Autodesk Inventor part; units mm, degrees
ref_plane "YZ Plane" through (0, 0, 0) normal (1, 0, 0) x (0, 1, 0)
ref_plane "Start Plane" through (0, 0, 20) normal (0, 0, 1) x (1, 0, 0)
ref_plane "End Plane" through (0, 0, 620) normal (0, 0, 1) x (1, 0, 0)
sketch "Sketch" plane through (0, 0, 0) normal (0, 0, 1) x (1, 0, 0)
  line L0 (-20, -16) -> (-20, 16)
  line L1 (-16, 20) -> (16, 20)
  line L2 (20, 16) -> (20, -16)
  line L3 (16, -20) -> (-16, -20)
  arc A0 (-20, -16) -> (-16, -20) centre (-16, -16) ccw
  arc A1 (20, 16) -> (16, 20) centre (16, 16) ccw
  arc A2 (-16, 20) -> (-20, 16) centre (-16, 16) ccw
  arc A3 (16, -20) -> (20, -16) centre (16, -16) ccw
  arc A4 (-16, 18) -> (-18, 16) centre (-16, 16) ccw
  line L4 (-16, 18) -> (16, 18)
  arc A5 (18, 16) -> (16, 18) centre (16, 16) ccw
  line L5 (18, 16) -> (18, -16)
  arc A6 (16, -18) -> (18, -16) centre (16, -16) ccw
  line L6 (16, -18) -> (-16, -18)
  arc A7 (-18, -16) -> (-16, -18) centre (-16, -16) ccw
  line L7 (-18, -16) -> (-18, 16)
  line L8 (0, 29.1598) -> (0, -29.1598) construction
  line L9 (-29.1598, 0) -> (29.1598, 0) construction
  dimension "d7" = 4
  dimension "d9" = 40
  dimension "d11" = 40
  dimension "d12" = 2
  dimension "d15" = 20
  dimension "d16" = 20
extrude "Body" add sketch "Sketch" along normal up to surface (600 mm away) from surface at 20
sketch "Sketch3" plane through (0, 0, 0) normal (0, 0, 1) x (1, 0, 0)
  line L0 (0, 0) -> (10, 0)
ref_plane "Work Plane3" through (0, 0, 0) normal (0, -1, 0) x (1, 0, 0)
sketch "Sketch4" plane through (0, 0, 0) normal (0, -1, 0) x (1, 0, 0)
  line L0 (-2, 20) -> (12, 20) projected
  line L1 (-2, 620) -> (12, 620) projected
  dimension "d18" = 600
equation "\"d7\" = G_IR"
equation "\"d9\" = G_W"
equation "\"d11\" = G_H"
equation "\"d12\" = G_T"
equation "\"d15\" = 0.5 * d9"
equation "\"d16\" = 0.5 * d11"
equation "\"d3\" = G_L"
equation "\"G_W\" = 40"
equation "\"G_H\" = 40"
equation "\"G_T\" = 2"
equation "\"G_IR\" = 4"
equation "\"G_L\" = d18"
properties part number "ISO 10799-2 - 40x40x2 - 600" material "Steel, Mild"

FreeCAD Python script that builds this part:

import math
import FreeCAD as App
import Part
import Sketcher

V = App.Vector
Q = App.Units.Quantity

doc = App.newDocument("Part")
body = doc.addObject("PartDesign::Body", "Body")

# Sketch on XY plane
sketch1 = body.newObject("Sketcher::SketchObject", "Sketch")
sketch1.AttachmentSupport = (doc.getObject("XY_Plane"), [""])
sketch1.MapMode = "FlatFace"
sketch1.AttachmentOffset = App.Placement(V(0, 0, 20), App.Rotation())
sketch1.addGeometry([
    Part.LineSegment(V(-20, 16, 0), V(-20, -16, 0)),  # 0
    Part.ArcOfCircle(Part.Circle(V(-16, -16, 0), V(0, 0, 1), 4), math.radians(180), math.radians(270)),  # 1
    Part.LineSegment(V(-16, -20, 0), V(16, -20, 0)),  # 2
    Part.ArcOfCircle(Part.Circle(V(16, -16, 0), V(0, 0, 1), 4), math.radians(-90), math.radians(0)),  # 3
    Part.LineSegment(V(20, -16, 0), V(20, 16, 0)),  # 4
    Part.ArcOfCircle(Part.Circle(V(16, 16, 0), V(0, 0, 1), 4), math.radians(0), math.radians(90)),  # 5
    Part.LineSegment(V(16, 20, 0), V(-16, 20, 0)),  # 6
    Part.ArcOfCircle(Part.Circle(V(-16, 16, 0), V(0, 0, 1), 4), math.radians(90), math.radians(180)),  # 7
    Part.ArcOfCircle(Part.Circle(V(-16, 16, 0), V(0, 0, 1), 2), math.radians(90), math.radians(180)),  # 8
    Part.LineSegment(V(-16, 18, 0), V(16, 18, 0)),  # 9
    Part.ArcOfCircle(Part.Circle(V(16, 16, 0), V(0, 0, 1), 2), math.radians(0), math.radians(90)),  # 10
    Part.LineSegment(V(18, 16, 0), V(18, -16, 0)),  # 11
    Part.ArcOfCircle(Part.Circle(V(16, -16, 0), V(0, 0, 1), 2), math.radians(-90), math.radians(0)),  # 12
    Part.LineSegment(V(16, -18, 0), V(-16, -18, 0)),  # 13
    Part.ArcOfCircle(Part.Circle(V(-16, -16, 0), V(0, 0, 1), 2), math.radians(180), math.radians(270)),  # 14
    Part.LineSegment(V(-18, -16, 0), V(-18, 16, 0)),  # 15
], False)
sketch1.addConstraint([
    Sketcher.Constraint("Tangent", 0, 2, 1, 1),
    Sketcher.Constraint("Tangent", 1, 2, 2, 1),
    Sketcher.Constraint("Tangent", 2, 2, 3, 1),
    Sketcher.Constraint("Tangent", 3, 2, 4, 1),
    Sketcher.Constraint("Tangent", 4, 2, 5, 1),
    Sketcher.Constraint("Tangent", 5, 2, 6, 1),
    Sketcher.Constraint("Tangent", 6, 2, 7, 1),
    Sketcher.Constraint("Tangent", 7, 2, 0, 1),
    Sketcher.Constraint("Tangent", 8, 1, 9, 1),
    Sketcher.Constraint("Tangent", 9, 2, 10, 2),
    Sketcher.Constraint("Tangent", 10, 1, 11, 1),
    Sketcher.Constraint("Tangent", 11, 2, 12, 2),
    Sketcher.Constraint("Tangent", 12, 1, 13, 1),
    Sketcher.Constraint("Tangent", 13, 2, 14, 2),
    Sketcher.Constraint("Tangent", 14, 1, 15, 1),
    Sketcher.Constraint("Tangent", 15, 2, 8, 2),
    Sketcher.Constraint("Vertical", 0),
    Sketcher.Constraint("Horizontal", 2),
    Sketcher.Constraint("Vertical", 4),
    Sketcher.Constraint("Horizontal", 6),
    Sketcher.Constraint("Horizontal", 9),
    Sketcher.Constraint("Vertical", 11),
    Sketcher.Constraint("Horizontal", 13),
    Sketcher.Constraint("Vertical", 15),
    Sketcher.Constraint("Coincident", 8, 3, 7, 3),
    Sketcher.Constraint("Coincident", 10, 3, 5, 3),
    Sketcher.Constraint("Coincident", 12, 3, 3, 3),
    Sketcher.Constraint("Equal", 1, 3),
    Sketcher.Constraint("Equal", 3, 5),
    Sketcher.Constraint("Equal", 5, 7),
    Sketcher.Constraint("Equal", 12, 14),
    Sketcher.Constraint("Symmetric", 1, 3, 5, 3, -1, 1),
    Sketcher.Constraint("Equal", 13, 0),
    Sketcher.Constraint("Radius", 1, Q("4 mm")),
    Sketcher.Constraint("Radius", 8, Q("2 mm")),
    Sketcher.Constraint("DistanceX", 0, 2, -1, 1, Q("20 mm")),
])
pad1 = body.newObject("PartDesign::Pad", "Pad")
pad1.Profile = sketch1
pad1.Length = 600

doc.recompute()
